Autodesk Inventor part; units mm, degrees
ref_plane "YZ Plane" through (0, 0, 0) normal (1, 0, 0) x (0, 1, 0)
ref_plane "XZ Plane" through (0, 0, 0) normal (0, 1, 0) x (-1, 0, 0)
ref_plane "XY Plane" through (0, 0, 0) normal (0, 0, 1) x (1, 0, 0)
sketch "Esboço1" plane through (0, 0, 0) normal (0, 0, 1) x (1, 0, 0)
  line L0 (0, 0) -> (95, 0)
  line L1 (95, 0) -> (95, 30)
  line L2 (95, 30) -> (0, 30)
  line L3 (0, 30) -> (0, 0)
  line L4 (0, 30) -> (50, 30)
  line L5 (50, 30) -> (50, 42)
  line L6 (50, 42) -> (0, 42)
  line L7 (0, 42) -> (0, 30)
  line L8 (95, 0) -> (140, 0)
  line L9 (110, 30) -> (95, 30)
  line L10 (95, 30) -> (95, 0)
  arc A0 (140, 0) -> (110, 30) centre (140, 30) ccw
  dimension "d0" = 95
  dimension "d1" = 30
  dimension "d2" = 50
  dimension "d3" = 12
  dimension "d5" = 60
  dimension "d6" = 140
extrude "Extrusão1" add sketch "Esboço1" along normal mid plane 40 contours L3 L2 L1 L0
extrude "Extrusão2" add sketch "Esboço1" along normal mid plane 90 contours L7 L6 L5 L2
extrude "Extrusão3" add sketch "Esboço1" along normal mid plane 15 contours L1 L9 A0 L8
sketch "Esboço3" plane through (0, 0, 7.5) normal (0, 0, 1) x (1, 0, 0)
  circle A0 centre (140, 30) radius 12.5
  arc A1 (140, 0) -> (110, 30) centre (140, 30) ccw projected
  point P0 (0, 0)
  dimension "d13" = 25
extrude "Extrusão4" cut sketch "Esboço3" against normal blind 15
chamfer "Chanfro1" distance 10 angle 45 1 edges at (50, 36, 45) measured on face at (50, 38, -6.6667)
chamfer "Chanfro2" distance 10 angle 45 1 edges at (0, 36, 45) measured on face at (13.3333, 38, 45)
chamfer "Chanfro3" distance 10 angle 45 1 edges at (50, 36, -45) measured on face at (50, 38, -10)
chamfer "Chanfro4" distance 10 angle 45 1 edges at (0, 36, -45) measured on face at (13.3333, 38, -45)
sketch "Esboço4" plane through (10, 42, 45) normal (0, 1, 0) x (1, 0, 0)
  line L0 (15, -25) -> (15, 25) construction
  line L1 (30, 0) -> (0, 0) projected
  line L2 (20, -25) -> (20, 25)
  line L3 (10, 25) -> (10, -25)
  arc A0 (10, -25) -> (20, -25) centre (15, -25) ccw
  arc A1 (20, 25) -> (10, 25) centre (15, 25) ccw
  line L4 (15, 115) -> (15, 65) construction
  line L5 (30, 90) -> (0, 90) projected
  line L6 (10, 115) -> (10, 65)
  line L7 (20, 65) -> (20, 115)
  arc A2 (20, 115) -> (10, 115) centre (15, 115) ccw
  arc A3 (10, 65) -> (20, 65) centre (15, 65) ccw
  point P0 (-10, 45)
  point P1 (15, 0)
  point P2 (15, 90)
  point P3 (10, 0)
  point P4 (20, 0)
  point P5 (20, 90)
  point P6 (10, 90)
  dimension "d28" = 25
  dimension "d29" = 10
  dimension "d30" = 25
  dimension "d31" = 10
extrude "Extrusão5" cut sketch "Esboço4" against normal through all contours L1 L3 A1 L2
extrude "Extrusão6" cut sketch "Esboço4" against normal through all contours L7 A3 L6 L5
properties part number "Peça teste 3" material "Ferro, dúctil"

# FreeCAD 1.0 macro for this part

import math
import FreeCAD as App
import Part
import Sketcher
Q = App.Units.Quantity


def edges_at(feature, points):
    """Names of the edges that pass closest to the given points."""
    edges = feature.Shape.Edges
    near = lambda p: min(range(len(edges)), key=lambda i: edges[i].distToShape(Part.Vertex(*p))[0])
    return sorted({f"Edge{near(p) + 1}" for p in points})


def add_polygon(sketch, points):
    """Adds a closed chain of lines whose ends are joined by coincident constraints."""
    first, n = sketch.GeometryCount, len(points)
    for a, b in zip(points, points[1:] + points[:1]):
        sketch.addGeometry(Part.LineSegment(App.Vector(*a, 0), App.Vector(*b, 0)), False)
    for i in range(n):
        sketch.addConstraint(Sketcher.Constraint("Coincident", first + i, 2, first + (i + 1) % n, 1))

doc = App.newDocument("Part")
body = doc.addObject("PartDesign::Body", "Body")

sketch1 = doc.addObject("Sketcher::SketchObject", "Sketch")
body.addObject(sketch1)
sketch1.AttachmentSupport = (doc.XY_Plane, [""])
sketch1.MapMode = "FlatFace"
add_polygon(sketch1, [(0, 30), (0, 0), (95, 0), (95, 30)])
sketch1.addConstraint([
    Sketcher.Constraint("Vertical", 0),
    Sketcher.Constraint("Horizontal", 1),
    Sketcher.Constraint("Vertical", 2),
    Sketcher.Constraint("Horizontal", 3),
    Sketcher.Constraint("Coincident", 0, 2, -1, 1),
    Sketcher.Constraint("DistanceX", 1, 1, 1, 2, Q("95 mm")),
    Sketcher.Constraint("DistanceY", 0, 2, 0, 1, Q("30 mm")),
])
pad1 = doc.addObject("PartDesign::Pad", "Pad")
body.addObject(pad1)
pad1.Profile = sketch1
pad1.Length = 40
pad1.Midplane = True

sketch2 = doc.addObject("Sketcher::SketchObject", "Sketch001")
body.addObject(sketch2)
sketch2.AttachmentSupport = (doc.XY_Plane, [""])
sketch2.MapMode = "FlatFace"
add_polygon(sketch2, [(0, 42), (0, 30), (50, 30), (50, 42)])
sketch2.addConstraint([
    Sketcher.Constraint("Vertical", 0),
    Sketcher.Constraint("Horizontal", 1),
    Sketcher.Constraint("Vertical", 2),
    Sketcher.Constraint("Horizontal", 3),
    Sketcher.Constraint("PointOnObject", 0, 2, -2),
    Sketcher.Constraint("DistanceX", 1, 1, 1, 2, Q("50 mm")),
    Sketcher.Constraint("DistanceY", 0, 2, 0, 1, Q("12 mm")),
    Sketcher.Constraint("DistanceY", -1, 1, 0, 2, Q("30 mm")),
])
pad2 = doc.addObject("PartDesign::Pad", "Pad001")
body.addObject(pad2)
pad2.Profile = sketch2
pad2.Length = 90
pad2.Midplane = True

sketch3 = doc.addObject("Sketcher::SketchObject", "Sketch002")
body.addObject(sketch3)
sketch3.AttachmentSupport = (doc.XY_Plane, [""])
sketch3.MapMode = "FlatFace"
sketch3.addGeometry([
    Part.LineSegment(App.Vector(95, 30, 0), App.Vector(95, 0, 0)),
    Part.LineSegment(App.Vector(95, 0, 0), App.Vector(140, 0, 0)),
    Part.ArcOfCircle(Part.Circle(App.Vector(140, 30, 0), App.Vector(0, 0, 1), 30), math.radians(-90), math.radians(180)),
    Part.LineSegment(App.Vector(110, 30, 0), App.Vector(95, 30, 0)),
], False)
sketch3.addConstraint([
    Sketcher.Constraint("Coincident", 0, 2, 1, 1),
    Sketcher.Constraint("Tangent", 1, 2, 2, 1),
    Sketcher.Constraint("Coincident", 2, 2, 3, 1),
    Sketcher.Constraint("Coincident", 3, 2, 0, 1),
    Sketcher.Constraint("Vertical", 0),
    Sketcher.Constraint("Horizontal", 1),
    Sketcher.Constraint("Horizontal", 3),
    Sketcher.Constraint("PointOnObject", 0, 2, -1),
    Sketcher.Constraint("Radius", 2, Q("30 mm")),
    Sketcher.Constraint("DistanceY", 0, 2, 0, 1, Q("30 mm")),
    Sketcher.Constraint("DistanceX", -1, 1, 2, 3, Q("140 mm")),
    Sketcher.Constraint("DistanceX", -1, 1, 0, 2, Q("95 mm")),
])
pad3 = doc.addObject("PartDesign::Pad", "Pad002")
body.addObject(pad3)
pad3.Profile = sketch3
pad3.Length = 15
pad3.Midplane = True

sketch4 = doc.addObject("Sketcher::SketchObject", "Sketch003")
body.addObject(sketch4)
sketch4.AttachmentSupport = (doc.XY_Plane, [""])
sketch4.MapMode = "FlatFace"
sketch4.AttachmentOffset = App.Placement(App.Vector(0, 0, 7.5), App.Rotation())
sketch4.addGeometry(Part.Circle(App.Vector(140, 30, 0), App.Vector(0, 0, 1), 12), False)
sketch4.addConstraint([
    Sketcher.Constraint("Diameter", 0, Q("25 mm")),
    Sketcher.Constraint("DistanceX", -1, 1, 0, 3, Q("140 mm")),
    Sketcher.Constraint("DistanceY", -1, 1, 0, 3, Q("30 mm")),
])
pocket1 = doc.addObject("PartDesign::Pocket", "Pocket")
body.addObject(pocket1)
pocket1.Profile = sketch4
pocket1.Length = 15
doc.recompute()

chamfer = doc.addObject("PartDesign::Chamfer", "Chamfer")
body.addObject(chamfer)
chamfer.Base = (pocket1, edges_at(pocket1, [(50, 36, 45)]))
chamfer.Size = 10
doc.recompute()

chamfer2 = doc.addObject("PartDesign::Chamfer", "Chamfer001")
body.addObject(chamfer2)
chamfer2.Base = (chamfer, edges_at(chamfer, [(0, 36, 45)]))
chamfer2.Size = 10
doc.recompute()

chamfer3 = doc.addObject("PartDesign::Chamfer", "Chamfer002")
body.addObject(chamfer3)
chamfer3.Base = (chamfer2, edges_at(chamfer2, [(50, 36, -45)]))
chamfer3.Size = 10
doc.recompute()

chamfer4 = doc.addObject("PartDesign::Chamfer", "Chamfer003")
body.addObject(chamfer4)
chamfer4.Base = (chamfer3, edges_at(chamfer3, [(0, 36, -45)]))
chamfer4.Size = 10

sketch5 = doc.addObject("Sketcher::SketchObject", "Sketch004")
body.addObject(sketch5)
sketch5.AttachmentSupport = (doc.XZ_Plane, [""])
sketch5.MapMode = "FlatFace"
sketch5.AttachmentOffset = App.Placement(App.Vector(0, 0, -42), App.Rotation())
sketch5.addGeometry([
    Part.LineSegment(App.Vector(20, 45, 0), App.Vector(30, 45, 0)),
    Part.LineSegment(App.Vector(30, 45, 0), App.Vector(30, 20, 0)),
    Part.ArcOfCircle(Part.Circle(App.Vector(25, 20, 0), App.Vector(0, 0, 1), 5), math.radians(180), math.radians(360)),
    Part.LineSegment(App.Vector(20, 20, 0), App.Vector(20, 45, 0)),
], False)
sketch5.addConstraint([
    Sketcher.Constraint("Coincident", 0, 2, 1, 1),
    Sketcher.Constraint("Tangent", 1, 2, 2, 2),
    Sketcher.Constraint("Tangent", 2, 1, 3, 1),
    Sketcher.Constraint("Coincident", 3, 2, 0, 1),
    Sketcher.Constraint("Horizontal", 0),
    Sketcher.Constraint("Vertical", 1),
    Sketcher.Constraint("Vertical", 3),
    Sketcher.Constraint("Radius", 2, Q("5 mm")),
    Sketcher.Constraint("DistanceY", 1, 2, 1, 1, Q("25 mm")),
    Sketcher.Constraint("DistanceX", -1, 1, 2, 3, Q("25 mm")),
    Sketcher.Constraint("DistanceY", -1, 1, 2, 3, Q("20 mm")),
])
pocket2 = doc.addObject("PartDesign::Pocket", "Pocket001")
body.addObject(pocket2)
pocket2.Profile = sketch5
pocket2.Type = "ThroughAll"
pocket2.Reversed = True

sketch6 = doc.addObject("Sketcher::SketchObject", "Sketch005")
body.addObject(sketch6)
sketch6.AttachmentSupport = (doc.XZ_Plane, [""])
sketch6.MapMode = "FlatFace"
sketch6.AttachmentOffset = App.Placement(App.Vector(0, 0, -42), App.Rotation())
sketch6.addGeometry([
    Part.LineSegment(App.Vector(30, -20, 0), App.Vector(30, -45, 0)),
    Part.LineSegment(App.Vector(30, -45, 0), App.Vector(20, -45, 0)),
    Part.LineSegment(App.Vector(20, -45, 0), App.Vector(20, -20, 0)),
    Part.ArcOfCircle(Part.Circle(App.Vector(25, -20, 0), App.Vector(0, 0, 1), 5), math.radians(0), math.radians(180)),
], False)
sketch6.addConstraint([
    Sketcher.Constraint("Coincident", 0, 2, 1, 1),
    Sketcher.Constraint("Coincident", 1, 2, 2, 1),
    Sketcher.Constraint("Tangent", 2, 2, 3, 2),
    Sketcher.Constraint("Tangent", 3, 1, 0, 1),
    Sketcher.Constraint("Vertical", 0),
    Sketcher.Constraint("Horizontal", 1),
    Sketcher.Constraint("Vertical", 2),
    Sketcher.Constraint("Radius", 3, Q("5 mm")),
    Sketcher.Constraint("DistanceY", 0, 2, 0, 1, Q("25 mm")),
    Sketcher.Constraint("DistanceX", -1, 1, 3, 3, Q("25 mm")),
    Sketcher.Constraint("DistanceY", 3, 3, -1, 1, Q("20 mm")),
])
pocket3 = doc.addObject("PartDesign::Pocket", "Pocket002")
body.addObject(pocket3)
pocket3.Profile = sketch6
pocket3.Type = "ThroughAll"
pocket3.Reversed = True

doc.recompute()
